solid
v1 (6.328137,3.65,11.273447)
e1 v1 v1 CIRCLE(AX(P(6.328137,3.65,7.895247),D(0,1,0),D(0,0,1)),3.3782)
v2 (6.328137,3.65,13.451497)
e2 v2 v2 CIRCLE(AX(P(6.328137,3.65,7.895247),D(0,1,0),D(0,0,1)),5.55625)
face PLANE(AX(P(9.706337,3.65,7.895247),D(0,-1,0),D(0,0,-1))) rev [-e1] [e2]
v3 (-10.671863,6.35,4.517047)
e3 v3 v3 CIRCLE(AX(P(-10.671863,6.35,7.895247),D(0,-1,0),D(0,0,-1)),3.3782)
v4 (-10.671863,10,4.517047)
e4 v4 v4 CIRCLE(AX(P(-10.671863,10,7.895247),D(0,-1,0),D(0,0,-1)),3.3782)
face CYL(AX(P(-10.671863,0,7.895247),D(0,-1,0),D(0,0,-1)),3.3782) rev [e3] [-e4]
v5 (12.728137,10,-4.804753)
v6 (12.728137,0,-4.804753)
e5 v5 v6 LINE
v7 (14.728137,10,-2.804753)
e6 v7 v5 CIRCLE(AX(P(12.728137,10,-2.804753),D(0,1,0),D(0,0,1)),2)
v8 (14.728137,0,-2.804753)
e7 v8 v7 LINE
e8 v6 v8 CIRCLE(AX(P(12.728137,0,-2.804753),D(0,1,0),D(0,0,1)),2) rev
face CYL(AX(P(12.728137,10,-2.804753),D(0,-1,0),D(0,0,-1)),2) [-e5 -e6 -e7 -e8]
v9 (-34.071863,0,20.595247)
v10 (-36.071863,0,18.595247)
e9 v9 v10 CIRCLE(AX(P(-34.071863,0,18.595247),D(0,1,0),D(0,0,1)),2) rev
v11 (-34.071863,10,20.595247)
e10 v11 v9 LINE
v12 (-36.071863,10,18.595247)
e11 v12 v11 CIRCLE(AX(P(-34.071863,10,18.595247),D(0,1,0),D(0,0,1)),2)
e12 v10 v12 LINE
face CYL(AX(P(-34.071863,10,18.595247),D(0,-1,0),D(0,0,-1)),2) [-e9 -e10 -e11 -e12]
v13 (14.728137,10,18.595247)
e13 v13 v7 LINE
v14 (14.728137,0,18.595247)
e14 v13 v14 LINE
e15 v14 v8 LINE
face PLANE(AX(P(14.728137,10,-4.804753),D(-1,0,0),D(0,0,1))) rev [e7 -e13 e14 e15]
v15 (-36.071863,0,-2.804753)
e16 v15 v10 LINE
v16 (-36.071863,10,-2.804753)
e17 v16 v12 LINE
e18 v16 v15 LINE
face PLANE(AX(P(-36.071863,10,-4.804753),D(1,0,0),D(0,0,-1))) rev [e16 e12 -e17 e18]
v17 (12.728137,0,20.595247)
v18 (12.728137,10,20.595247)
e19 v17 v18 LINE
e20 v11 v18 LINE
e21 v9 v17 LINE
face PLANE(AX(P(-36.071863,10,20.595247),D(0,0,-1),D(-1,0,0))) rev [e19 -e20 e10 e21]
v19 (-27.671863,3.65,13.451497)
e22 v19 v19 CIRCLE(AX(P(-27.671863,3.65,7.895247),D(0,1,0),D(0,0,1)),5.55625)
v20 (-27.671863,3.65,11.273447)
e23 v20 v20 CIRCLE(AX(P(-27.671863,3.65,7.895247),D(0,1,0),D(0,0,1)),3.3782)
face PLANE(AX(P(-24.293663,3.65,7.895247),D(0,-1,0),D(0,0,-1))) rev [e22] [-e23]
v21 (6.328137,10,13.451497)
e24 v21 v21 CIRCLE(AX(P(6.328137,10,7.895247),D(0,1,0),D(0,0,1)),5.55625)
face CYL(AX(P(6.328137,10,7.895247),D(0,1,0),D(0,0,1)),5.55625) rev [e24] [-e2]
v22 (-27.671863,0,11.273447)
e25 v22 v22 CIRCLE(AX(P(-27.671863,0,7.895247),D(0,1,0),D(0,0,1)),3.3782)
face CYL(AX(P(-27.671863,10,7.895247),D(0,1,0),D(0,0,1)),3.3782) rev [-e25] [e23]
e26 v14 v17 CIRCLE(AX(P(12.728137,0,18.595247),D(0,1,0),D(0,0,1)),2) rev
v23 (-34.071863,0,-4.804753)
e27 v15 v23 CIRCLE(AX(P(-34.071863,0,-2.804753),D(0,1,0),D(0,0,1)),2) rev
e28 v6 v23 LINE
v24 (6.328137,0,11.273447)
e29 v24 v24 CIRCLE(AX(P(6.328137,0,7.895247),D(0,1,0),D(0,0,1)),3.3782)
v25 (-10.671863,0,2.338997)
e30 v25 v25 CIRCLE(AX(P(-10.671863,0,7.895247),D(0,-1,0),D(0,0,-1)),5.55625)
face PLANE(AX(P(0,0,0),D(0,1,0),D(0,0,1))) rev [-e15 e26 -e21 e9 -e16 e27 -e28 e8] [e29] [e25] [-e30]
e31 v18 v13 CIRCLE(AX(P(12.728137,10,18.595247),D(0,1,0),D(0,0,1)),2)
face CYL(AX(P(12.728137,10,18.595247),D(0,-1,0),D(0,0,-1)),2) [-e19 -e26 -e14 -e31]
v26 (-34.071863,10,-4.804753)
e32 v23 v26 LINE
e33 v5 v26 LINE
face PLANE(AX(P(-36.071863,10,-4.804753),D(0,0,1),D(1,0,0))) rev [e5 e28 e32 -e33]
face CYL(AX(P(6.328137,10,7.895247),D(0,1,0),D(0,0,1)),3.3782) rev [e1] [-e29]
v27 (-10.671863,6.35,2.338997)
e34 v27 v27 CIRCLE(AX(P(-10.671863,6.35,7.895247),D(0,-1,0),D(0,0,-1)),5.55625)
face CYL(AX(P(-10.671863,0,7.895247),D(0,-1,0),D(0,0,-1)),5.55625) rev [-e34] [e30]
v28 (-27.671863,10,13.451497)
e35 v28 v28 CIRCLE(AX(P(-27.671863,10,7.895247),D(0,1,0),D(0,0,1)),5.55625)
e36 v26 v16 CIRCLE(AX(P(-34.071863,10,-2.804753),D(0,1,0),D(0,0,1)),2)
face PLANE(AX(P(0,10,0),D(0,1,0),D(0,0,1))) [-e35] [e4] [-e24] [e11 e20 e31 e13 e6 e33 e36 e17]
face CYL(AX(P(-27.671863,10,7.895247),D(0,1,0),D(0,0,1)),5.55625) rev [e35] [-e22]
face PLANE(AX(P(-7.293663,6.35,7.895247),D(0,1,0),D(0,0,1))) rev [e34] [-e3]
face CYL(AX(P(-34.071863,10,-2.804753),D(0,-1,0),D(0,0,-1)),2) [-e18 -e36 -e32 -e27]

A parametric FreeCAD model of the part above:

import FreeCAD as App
import Part
import Sketcher

V = App.Vector
Q = App.Units.Quantity


def edges_at(feature, points):
    """Names of the edges that pass closest to the given points."""
    edges = feature.Shape.Edges
    near = lambda p: min(range(len(edges)), key=lambda i: edges[i].distToShape(Part.Vertex(*p))[0])
    return sorted({f"Edge{near(p) + 1}" for p in points})

doc = App.newDocument("Part")
body = doc.addObject("PartDesign::Body", "Body")

# Sketch on XZ plane
sketch1 = body.newObject("Sketcher::SketchObject", "Sketch")
sketch1.AttachmentSupport = (doc.getObject("XZ_Plane"), [""])
sketch1.MapMode = "FlatFace"
sketch1.addGeometry([
    Part.LineSegment(V(-36, -5, 0), V(-36, 21, 0)),
    Part.LineSegment(V(-36, 21, 0), V(15, 21, 0)),
    Part.LineSegment(V(15, 21, 0), V(15, -5, 0)),
    Part.LineSegment(V(15, -5, 0), V(-36, -5, 0)),
], False)
sketch1.addConstraint([
    Sketcher.Constraint("Coincident", 0, 2, 1, 1),
    Sketcher.Constraint("Coincident", 1, 2, 2, 1),
    Sketcher.Constraint("Coincident", 2, 2, 3, 1),
    Sketcher.Constraint("Coincident", 3, 2, 0, 1),
    Sketcher.Constraint("Vertical", 0),
    Sketcher.Constraint("Horizontal", 1),
    Sketcher.Constraint("Vertical", 2),
    Sketcher.Constraint("Horizontal", 3),
    Sketcher.Constraint("DistanceX", 1, 1, 1, 2, Q("2 in")),
    Sketcher.Constraint("DistanceY", 0, 1, 0, 2, Q("1 in")),
    Sketcher.Constraint("DistanceX", 0, 2, -1, 1, Q("36.071863 mm")),
    Sketcher.Constraint("DistanceY", -1, 1, 0, 2, Q("20.595247 mm")),
])
pad1 = body.newObject("PartDesign::Pad", "Pad")
pad1.Profile = sketch1
pad1.Length = 10
pad1.Reversed = True

# Sketch on XZ plane
sketch2 = body.newObject("Sketcher::SketchObject", "Sketch001")
sketch2.AttachmentSupport = (doc.getObject("XZ_Plane"), [""])
sketch2.MapMode = "FlatFace"
sketch2.AttachmentOffset = App.Placement(V(0, 0, -10), App.Rotation())
sketch2.addGeometry([
    Part.Circle(V(-27.7, 7.9, 0), V(0, 0, 1), 3.4),
    Part.Circle(V(6.3, 7.9, 0), V(0, 0, 1), 3.4),
], False)
sketch2.addConstraint([
    Sketcher.Constraint("Equal", 0, 1),
    Sketcher.Constraint("Horizontal", 0, 3, 1, 3),
    Sketcher.Constraint("Diameter", 0, Q("0.266 in")),
    Sketcher.Constraint("DistanceX", 0, 3, 1, 3, Q("34 mm")),
    Sketcher.Constraint("DistanceX", 0, 3, -1, 1, Q("27.671863 mm")),
    Sketcher.Constraint("DistanceY", -1, 1, 0, 3, Q("7.895247 mm")),
])
doc.recompute()
hole = body.newObject("PartDesign::Hole", "Hole")
hole.Profile = sketch2
hole.ThreadType = "None"
hole.Diameter = Q("0.266 in")
hole.DepthType = "ThroughAll"
hole.HoleCutType = "Counterbore"
hole.HoleCutDiameter = Q("0.4375 in")
hole.HoleCutDepth = Q("0.25 in")
hole.Reversed = True

# Sketch on XZ plane
sketch3 = body.newObject("Sketcher::SketchObject", "Sketch002")
sketch3.AttachmentSupport = (doc.getObject("XZ_Plane"), [""])
sketch3.MapMode = "FlatFace"
sketch3.addGeometry(Part.Circle(V(-10.7, 7.9, 0), V(0, 0, 1), 3.4), False)
sketch3.addConstraint([
    Sketcher.Constraint("Diameter", 0, Q("0.266 in")),
    Sketcher.Constraint("DistanceX", 0, 3, -1, 1, Q("10.671863 mm")),
    Sketcher.Constraint("DistanceY", -1, 1, 0, 3, Q("7.895247 mm")),
])
doc.recompute()
hole2 = body.newObject("PartDesign::Hole", "Hole001")
hole2.Profile = sketch3
hole2.ThreadType = "None"
hole2.Diameter = Q("0.266 in")
hole2.DepthType = "ThroughAll"
hole2.HoleCutType = "Counterbore"
hole2.HoleCutDiameter = Q("0.4375 in")
hole2.HoleCutDepth = Q("0.25 in")
doc.recompute()

fillet = body.newObject("PartDesign::Fillet", "Fillet")
fillet.Base = (hole2, edges_at(hole2, [
    (-36.072, 5, -4.805),
    (14.728, 5, -4.805),
    (14.728, 5, 20.595),
    (-36.072, 5, 20.595),
]))
fillet.Radius = 2

doc.recompute()
